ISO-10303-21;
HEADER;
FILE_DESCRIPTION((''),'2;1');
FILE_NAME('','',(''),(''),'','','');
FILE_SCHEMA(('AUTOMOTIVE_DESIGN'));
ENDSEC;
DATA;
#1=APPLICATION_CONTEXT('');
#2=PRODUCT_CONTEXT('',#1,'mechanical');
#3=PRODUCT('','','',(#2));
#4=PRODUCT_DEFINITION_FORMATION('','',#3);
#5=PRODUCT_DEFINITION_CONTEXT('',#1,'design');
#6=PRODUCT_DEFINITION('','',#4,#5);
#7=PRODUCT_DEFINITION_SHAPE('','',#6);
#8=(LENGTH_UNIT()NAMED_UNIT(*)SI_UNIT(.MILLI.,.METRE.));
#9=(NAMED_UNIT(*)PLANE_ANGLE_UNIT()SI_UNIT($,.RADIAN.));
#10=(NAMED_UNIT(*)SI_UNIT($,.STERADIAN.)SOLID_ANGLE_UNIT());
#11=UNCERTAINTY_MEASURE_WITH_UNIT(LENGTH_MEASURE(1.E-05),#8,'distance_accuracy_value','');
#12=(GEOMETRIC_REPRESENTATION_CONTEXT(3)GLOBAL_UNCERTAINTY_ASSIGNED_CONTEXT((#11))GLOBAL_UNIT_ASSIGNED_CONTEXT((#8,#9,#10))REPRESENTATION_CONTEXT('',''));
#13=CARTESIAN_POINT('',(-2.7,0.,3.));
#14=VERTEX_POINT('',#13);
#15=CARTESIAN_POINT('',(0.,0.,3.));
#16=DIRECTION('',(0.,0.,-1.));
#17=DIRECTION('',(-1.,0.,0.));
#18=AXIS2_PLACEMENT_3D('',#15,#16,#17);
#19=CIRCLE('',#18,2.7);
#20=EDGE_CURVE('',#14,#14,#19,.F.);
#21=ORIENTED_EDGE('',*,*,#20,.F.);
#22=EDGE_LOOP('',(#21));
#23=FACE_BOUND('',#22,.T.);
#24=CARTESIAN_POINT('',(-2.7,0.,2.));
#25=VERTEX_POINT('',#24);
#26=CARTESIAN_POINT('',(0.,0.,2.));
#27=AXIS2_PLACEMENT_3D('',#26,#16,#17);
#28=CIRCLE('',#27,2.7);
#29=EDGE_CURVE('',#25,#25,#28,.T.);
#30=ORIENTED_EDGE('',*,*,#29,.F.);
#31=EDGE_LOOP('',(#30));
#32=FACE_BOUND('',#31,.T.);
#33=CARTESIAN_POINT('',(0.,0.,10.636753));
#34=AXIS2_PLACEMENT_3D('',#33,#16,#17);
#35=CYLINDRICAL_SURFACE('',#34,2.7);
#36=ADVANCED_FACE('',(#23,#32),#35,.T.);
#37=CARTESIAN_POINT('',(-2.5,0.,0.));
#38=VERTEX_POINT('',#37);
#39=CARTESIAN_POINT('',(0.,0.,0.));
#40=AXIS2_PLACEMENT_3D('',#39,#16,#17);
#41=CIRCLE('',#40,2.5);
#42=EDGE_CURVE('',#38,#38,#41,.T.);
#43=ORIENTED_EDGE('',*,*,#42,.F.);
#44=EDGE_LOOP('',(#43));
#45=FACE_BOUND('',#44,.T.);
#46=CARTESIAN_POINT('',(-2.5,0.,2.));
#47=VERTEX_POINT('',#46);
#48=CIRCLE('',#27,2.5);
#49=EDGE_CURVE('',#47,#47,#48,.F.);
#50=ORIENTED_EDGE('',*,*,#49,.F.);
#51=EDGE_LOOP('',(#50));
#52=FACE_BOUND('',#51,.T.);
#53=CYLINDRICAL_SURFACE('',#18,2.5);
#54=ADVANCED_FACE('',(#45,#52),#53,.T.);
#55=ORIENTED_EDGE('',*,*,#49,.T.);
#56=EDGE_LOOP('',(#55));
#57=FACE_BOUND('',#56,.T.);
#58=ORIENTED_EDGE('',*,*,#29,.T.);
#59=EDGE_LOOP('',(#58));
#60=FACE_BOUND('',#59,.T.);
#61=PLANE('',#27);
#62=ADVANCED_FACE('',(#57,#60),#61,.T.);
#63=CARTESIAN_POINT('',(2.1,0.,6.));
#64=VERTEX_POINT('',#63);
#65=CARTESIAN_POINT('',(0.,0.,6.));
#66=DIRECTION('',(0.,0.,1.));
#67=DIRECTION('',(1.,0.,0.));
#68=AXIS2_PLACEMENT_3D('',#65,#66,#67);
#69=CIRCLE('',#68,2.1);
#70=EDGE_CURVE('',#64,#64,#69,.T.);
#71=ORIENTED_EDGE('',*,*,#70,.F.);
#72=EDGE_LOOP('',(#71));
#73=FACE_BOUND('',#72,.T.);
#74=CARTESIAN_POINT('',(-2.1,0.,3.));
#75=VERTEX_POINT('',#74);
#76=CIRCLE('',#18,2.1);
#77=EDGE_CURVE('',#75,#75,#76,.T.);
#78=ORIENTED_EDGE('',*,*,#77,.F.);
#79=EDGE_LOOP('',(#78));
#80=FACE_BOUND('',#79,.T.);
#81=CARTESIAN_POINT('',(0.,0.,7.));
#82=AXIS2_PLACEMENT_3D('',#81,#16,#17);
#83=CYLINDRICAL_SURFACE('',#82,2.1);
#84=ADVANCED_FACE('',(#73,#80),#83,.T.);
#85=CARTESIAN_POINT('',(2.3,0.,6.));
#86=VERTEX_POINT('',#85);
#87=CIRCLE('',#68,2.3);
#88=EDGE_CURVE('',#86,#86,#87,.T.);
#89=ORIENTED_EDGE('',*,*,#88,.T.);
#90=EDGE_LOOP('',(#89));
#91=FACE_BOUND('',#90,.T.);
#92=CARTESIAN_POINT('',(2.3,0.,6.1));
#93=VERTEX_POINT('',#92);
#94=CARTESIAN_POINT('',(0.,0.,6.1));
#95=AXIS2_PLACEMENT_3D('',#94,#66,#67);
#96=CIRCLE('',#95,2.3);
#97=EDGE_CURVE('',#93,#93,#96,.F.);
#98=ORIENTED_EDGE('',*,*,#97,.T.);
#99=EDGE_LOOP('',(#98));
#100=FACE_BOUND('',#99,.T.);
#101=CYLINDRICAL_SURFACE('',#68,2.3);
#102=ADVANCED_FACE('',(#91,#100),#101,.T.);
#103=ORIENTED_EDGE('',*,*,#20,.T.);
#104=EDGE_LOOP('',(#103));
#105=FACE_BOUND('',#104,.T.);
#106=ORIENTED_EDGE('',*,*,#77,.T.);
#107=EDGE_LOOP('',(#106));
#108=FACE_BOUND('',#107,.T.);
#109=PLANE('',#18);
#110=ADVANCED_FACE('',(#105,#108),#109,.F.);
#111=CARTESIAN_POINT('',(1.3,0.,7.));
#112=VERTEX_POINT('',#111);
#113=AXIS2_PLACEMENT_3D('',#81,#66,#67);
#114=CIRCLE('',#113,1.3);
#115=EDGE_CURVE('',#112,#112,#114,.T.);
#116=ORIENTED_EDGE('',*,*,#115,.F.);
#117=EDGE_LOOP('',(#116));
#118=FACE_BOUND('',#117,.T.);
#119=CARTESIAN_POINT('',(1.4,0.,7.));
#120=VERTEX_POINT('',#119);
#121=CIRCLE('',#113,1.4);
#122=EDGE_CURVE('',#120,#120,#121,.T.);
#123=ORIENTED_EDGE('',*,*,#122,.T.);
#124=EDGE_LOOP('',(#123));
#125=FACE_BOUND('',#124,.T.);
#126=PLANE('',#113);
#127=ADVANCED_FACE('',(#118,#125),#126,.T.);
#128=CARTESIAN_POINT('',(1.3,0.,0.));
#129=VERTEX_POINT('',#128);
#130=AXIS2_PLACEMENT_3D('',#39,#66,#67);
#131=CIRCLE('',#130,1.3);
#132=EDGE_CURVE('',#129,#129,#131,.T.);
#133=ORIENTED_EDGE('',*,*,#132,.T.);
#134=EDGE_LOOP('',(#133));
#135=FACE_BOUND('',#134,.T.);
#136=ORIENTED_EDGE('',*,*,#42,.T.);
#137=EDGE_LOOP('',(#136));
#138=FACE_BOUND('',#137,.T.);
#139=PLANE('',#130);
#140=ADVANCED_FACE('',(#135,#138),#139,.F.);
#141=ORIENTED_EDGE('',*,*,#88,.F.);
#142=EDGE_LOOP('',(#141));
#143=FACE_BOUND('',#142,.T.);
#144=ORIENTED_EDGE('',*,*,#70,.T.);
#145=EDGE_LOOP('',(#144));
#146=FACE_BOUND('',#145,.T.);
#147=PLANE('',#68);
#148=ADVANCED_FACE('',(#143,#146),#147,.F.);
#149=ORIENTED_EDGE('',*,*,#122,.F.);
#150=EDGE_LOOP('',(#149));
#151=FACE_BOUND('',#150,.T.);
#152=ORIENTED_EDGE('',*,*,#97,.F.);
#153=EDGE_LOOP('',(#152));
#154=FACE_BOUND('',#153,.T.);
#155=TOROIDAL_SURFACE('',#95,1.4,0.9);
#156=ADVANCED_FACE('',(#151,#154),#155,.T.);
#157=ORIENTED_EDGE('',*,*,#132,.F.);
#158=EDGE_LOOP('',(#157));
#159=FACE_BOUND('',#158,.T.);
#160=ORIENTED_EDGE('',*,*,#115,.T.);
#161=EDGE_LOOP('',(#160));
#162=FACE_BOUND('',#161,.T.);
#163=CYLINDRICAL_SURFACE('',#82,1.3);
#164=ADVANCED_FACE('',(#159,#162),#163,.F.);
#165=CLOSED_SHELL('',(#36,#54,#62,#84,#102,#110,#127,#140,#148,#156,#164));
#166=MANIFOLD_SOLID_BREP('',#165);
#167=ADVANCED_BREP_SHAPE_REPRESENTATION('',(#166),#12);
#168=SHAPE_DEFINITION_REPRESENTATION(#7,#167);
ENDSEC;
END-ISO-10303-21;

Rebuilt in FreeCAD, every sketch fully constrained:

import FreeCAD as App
import Part
import Sketcher
from FreeCAD import Vector


def edges_at(feature, points):
    """Names of the edges that pass closest to the given points."""
    edges = feature.Shape.Edges
    near = lambda p: min(range(len(edges)), key=lambda i: edges[i].distToShape(Part.Vertex(*p))[0])
    return sorted({f"Edge{near(p) + 1}" for p in points})

doc = App.newDocument("Part")
body = doc.addObject("PartDesign::Body", "Body")

sketch1 = doc.addObject("Sketcher::SketchObject", "Sketch")
body.addObject(sketch1)
sketch1.AttachmentSupport = (doc.XY_Plane, [""])
sketch1.MapMode = "FlatFace"
sketch1.addGeometry([
    Part.Circle(Vector(0, 0, 0), Vector(0, 0, 1), 2.1),
    Part.Circle(Vector(0, 0, 0), Vector(0, 0, 1), 1.3),
], False)
sketch1.addConstraint([
    Sketcher.Constraint("Coincident", 0, 3, -1, 1),
    Sketcher.Constraint("Coincident", 1, 3, -1, 1),
    Sketcher.Constraint("Diameter", 0, 4.2),
    Sketcher.Constraint("Diameter", 1, 2.6),
])
pad1 = doc.addObject("PartDesign::Pad", "Pad")
body.addObject(pad1)
pad1.Profile = sketch1
pad1.Length = 7

sketch2 = doc.addObject("Sketcher::SketchObject", "Sketch001")
body.addObject(sketch2)
sketch2.AttachmentSupport = (doc.XY_Plane, [""])
sketch2.MapMode = "FlatFace"
sketch2.addGeometry([
    Part.Circle(Vector(0, 0, 0), Vector(0, 0, 1), 2.5),
    Part.Circle(Vector(0, 0, 0), Vector(0, 0, 1), 2.1),
], False)
sketch2.addConstraint([
    Sketcher.Constraint("Coincident", 0, 3, -1, 1),
    Sketcher.Constraint("Coincident", 1, 3, -1, 1),
    Sketcher.Constraint("Diameter", 0, 5.0),
    Sketcher.Constraint("Diameter", 1, 4.2),
])
pad2 = doc.addObject("PartDesign::Pad", "Pad001")
body.addObject(pad2)
pad2.Profile = sketch2
pad2.Length = 3

sketch3 = doc.addObject("Sketcher::SketchObject", "Sketch002")
body.addObject(sketch3)
sketch3.AttachmentSupport = (doc.XY_Plane, [""])
sketch3.MapMode = "FlatFace"
sketch3.AttachmentOffset = App.Placement(Vector(0, 0, 6), App.Rotation())
sketch3.addGeometry([
    Part.Circle(Vector(0, 0, 0), Vector(0, 0, 1), 2.3),
    Part.Circle(Vector(0, 0, 0), Vector(0, 0, 1), 2.1),
], False)
sketch3.addConstraint([
    Sketcher.Constraint("Coincident", 0, 3, -1, 1),
    Sketcher.Constraint("Coincident", 1, 3, -1, 1),
    Sketcher.Constraint("Diameter", 0, 4.6),
    Sketcher.Constraint("Diameter", 1, 4.2),
])
pad3 = doc.addObject("PartDesign::Pad", "Pad002")
body.addObject(pad3)
pad3.Profile = sketch3
pad3.Length = 1

sketch4 = doc.addObject("Sketcher::SketchObject", "Sketch003")
body.addObject(sketch4)
sketch4.AttachmentSupport = (doc.XY_Plane, [""])
sketch4.MapMode = "FlatFace"
sketch4.AttachmentOffset = App.Placement(Vector(0, 0, 2), App.Rotation())
sketch4.addGeometry([
    Part.Circle(Vector(0, 0, 0), Vector(0, 0, 1), 2.7),
    Part.Circle(Vector(0, 0, 0), Vector(0, 0, 1), 2.5),
], False)
sketch4.addConstraint([
    Sketcher.Constraint("Coincident", 0, 3, -1, 1),
    Sketcher.Constraint("Coincident", 1, 3, -1, 1),
    Sketcher.Constraint("Diameter", 1, 5.0),
    Sketcher.Constraint("Diameter", 0, 5.4),
])
pad4 = doc.addObject("PartDesign::Pad", "Pad003")
body.addObject(pad4)
pad4.Profile = sketch4
pad4.Length = 1
doc.recompute()

fillet = doc.addObject("PartDesign::Fillet", "Fillet")
body.addObject(fillet)
fillet.Base = (pad4, edges_at(pad4, [(-2.3, 0, 7)]))
fillet.Radius = 0.9

doc.recompute()
